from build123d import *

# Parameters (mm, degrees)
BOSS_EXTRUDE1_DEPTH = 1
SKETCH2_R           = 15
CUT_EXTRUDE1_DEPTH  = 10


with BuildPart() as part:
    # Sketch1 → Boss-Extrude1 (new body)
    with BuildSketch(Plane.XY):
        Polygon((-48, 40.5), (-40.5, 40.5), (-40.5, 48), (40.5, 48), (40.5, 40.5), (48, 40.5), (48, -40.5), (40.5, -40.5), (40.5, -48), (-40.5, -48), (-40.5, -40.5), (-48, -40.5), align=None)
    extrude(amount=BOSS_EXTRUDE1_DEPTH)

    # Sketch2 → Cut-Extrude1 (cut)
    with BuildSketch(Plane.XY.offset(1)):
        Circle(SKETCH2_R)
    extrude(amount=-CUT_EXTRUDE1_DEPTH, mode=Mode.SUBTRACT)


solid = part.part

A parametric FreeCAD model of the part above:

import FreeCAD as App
import Part
import Sketcher
from FreeCAD import Vector

doc = App.newDocument("Part")
body = doc.addObject("PartDesign::Body", "Body")

# Sketch on XY plane
sketch1 = doc.addObject("Sketcher::SketchObject", "Sketch")
body.addObject(sketch1)
sketch1.AttachmentSupport = (doc.XY_Plane, [""])
sketch1.MapMode = "FlatFace"
sketch1.addGeometry(Part.LineSegment(Vector(-40, 40, 0), Vector(-48, 40, 0)), False)
sketch1.addGeometry(Part.LineSegment(Vector(-48, 40, 0), Vector(-48, -40, 0)), False)
sketch1.addGeometry(Part.LineSegment(Vector(-48, -40, 0), Vector(-40, -40, 0)), False)
sketch1.addGeometry(Part.LineSegment(Vector(-40, -40, 0), Vector(-40, -48, 0)), False)
sketch1.addGeometry(Part.LineSegment(Vector(-40, -48, 0), Vector(40, -48, 0)), False)
sketch1.addGeometry(Part.LineSegment(Vector(40, -48, 0), Vector(40, -40, 0)), False)
sketch1.addGeometry(Part.LineSegment(Vector(40, -40, 0), Vector(48, -40, 0)), False)
sketch1.addGeometry(Part.LineSegment(Vector(48, -40, 0), Vector(48, 40, 0)), False)
sketch1.addGeometry(Part.LineSegment(Vector(48, 40, 0), Vector(40, 40, 0)), False)
sketch1.addGeometry(Part.LineSegment(Vector(40, 40, 0), Vector(40, 48, 0)), False)
sketch1.addGeometry(Part.LineSegment(Vector(40, 48, 0), Vector(-40, 48, 0)), False)
sketch1.addGeometry(Part.LineSegment(Vector(-40, 48, 0), Vector(-40, 40, 0)), False)
sketch1.addConstraint(Sketcher.Constraint("Coincident", 0, 2, 1, 1))
sketch1.addConstraint(Sketcher.Constraint("Coincident", 1, 2, 2, 1))
sketch1.addConstraint(Sketcher.Constraint("Coincident", 2, 2, 3, 1))
sketch1.addConstraint(Sketcher.Constraint("Coincident", 3, 2, 4, 1))
sketch1.addConstraint(Sketcher.Constraint("Coincident", 4, 2, 5, 1))
sketch1.addConstraint(Sketcher.Constraint("Coincident", 5, 2, 6, 1))
sketch1.addConstraint(Sketcher.Constraint("Coincident", 6, 2, 7, 1))
sketch1.addConstraint(Sketcher.Constraint("Coincident", 7, 2, 8, 1))
sketch1.addConstraint(Sketcher.Constraint("Coincident", 8, 2, 9, 1))
sketch1.addConstraint(Sketcher.Constraint("Coincident", 9, 2, 10, 1))
sketch1.addConstraint(Sketcher.Constraint("Coincident", 10, 2, 11, 1))
sketch1.addConstraint(Sketcher.Constraint("Coincident", 11, 2, 0, 1))
sketch1.addConstraint(Sketcher.Constraint("Horizontal", 0))
sketch1.addConstraint(Sketcher.Constraint("Vertical", 1))
sketch1.addConstraint(Sketcher.Constraint("Horizontal", 2))
sketch1.addConstraint(Sketcher.Constraint("Vertical", 3))
sketch1.addConstraint(Sketcher.Constraint("Horizontal", 4))
sketch1.addConstraint(Sketcher.Constraint("Vertical", 5))
sketch1.addConstraint(Sketcher.Constraint("Horizontal", 6))
sketch1.addConstraint(Sketcher.Constraint("Vertical", 7))
sketch1.addConstraint(Sketcher.Constraint("Horizontal", 8))
sketch1.addConstraint(Sketcher.Constraint("Vertical", 9))
sketch1.addConstraint(Sketcher.Constraint("Horizontal", 10))
sketch1.addConstraint(Sketcher.Constraint("Vertical", 11))
sketch1.addConstraint(Sketcher.Constraint("Symmetric", 0, 2, 6, 2, -1, 1))
sketch1.addConstraint(Sketcher.Constraint("Symmetric", 2, 2, 8, 2, -1, 1))
sketch1.addConstraint(Sketcher.Constraint("Symmetric", 4, 2, 10, 2, -1, 1))
sketch1.addConstraint(Sketcher.Constraint("Symmetric", 2, 2, 5, 2, -2))
sketch1.addConstraint(Sketcher.Constraint("Equal", 10, 1))
sketch1.addConstraint(Sketcher.Constraint("Equal", 8, 3))
sketch1.addConstraint(Sketcher.Constraint("DistanceX", 4, 1, 4, 2, 81.0))
sketch1.addConstraint(Sketcher.Constraint("DistanceX", 0, 2, 0, 1, 7.5))
pad1 = doc.addObject("PartDesign::Pad", "Pad")
body.addObject(pad1)
pad1.Profile = sketch1
pad1.Length = 1

# Sketch on XY plane
sketch2 = doc.addObject("Sketcher::SketchObject", "Sketch001")
body.addObject(sketch2)
sketch2.AttachmentSupport = (doc.XY_Plane, [""])
sketch2.MapMode = "FlatFace"
sketch2.AttachmentOffset = App.Placement(Vector(0, 0, 1), App.Rotation())
sketch2.addGeometry(Part.Circle(Vector(0, 0, 0), Vector(0, 0, 1), 15), False)
sketch2.addConstraint(Sketcher.Constraint("Coincident", 0, 3, -1, 1))
sketch2.addConstraint(Sketcher.Constraint("Diameter", 0, 30.0))
pocket1 = doc.addObject("PartDesign::Pocket", "Pocket")
body.addObject(pocket1)
pocket1.Profile = sketch2
pocket1.Length = 10

doc.recompute()
